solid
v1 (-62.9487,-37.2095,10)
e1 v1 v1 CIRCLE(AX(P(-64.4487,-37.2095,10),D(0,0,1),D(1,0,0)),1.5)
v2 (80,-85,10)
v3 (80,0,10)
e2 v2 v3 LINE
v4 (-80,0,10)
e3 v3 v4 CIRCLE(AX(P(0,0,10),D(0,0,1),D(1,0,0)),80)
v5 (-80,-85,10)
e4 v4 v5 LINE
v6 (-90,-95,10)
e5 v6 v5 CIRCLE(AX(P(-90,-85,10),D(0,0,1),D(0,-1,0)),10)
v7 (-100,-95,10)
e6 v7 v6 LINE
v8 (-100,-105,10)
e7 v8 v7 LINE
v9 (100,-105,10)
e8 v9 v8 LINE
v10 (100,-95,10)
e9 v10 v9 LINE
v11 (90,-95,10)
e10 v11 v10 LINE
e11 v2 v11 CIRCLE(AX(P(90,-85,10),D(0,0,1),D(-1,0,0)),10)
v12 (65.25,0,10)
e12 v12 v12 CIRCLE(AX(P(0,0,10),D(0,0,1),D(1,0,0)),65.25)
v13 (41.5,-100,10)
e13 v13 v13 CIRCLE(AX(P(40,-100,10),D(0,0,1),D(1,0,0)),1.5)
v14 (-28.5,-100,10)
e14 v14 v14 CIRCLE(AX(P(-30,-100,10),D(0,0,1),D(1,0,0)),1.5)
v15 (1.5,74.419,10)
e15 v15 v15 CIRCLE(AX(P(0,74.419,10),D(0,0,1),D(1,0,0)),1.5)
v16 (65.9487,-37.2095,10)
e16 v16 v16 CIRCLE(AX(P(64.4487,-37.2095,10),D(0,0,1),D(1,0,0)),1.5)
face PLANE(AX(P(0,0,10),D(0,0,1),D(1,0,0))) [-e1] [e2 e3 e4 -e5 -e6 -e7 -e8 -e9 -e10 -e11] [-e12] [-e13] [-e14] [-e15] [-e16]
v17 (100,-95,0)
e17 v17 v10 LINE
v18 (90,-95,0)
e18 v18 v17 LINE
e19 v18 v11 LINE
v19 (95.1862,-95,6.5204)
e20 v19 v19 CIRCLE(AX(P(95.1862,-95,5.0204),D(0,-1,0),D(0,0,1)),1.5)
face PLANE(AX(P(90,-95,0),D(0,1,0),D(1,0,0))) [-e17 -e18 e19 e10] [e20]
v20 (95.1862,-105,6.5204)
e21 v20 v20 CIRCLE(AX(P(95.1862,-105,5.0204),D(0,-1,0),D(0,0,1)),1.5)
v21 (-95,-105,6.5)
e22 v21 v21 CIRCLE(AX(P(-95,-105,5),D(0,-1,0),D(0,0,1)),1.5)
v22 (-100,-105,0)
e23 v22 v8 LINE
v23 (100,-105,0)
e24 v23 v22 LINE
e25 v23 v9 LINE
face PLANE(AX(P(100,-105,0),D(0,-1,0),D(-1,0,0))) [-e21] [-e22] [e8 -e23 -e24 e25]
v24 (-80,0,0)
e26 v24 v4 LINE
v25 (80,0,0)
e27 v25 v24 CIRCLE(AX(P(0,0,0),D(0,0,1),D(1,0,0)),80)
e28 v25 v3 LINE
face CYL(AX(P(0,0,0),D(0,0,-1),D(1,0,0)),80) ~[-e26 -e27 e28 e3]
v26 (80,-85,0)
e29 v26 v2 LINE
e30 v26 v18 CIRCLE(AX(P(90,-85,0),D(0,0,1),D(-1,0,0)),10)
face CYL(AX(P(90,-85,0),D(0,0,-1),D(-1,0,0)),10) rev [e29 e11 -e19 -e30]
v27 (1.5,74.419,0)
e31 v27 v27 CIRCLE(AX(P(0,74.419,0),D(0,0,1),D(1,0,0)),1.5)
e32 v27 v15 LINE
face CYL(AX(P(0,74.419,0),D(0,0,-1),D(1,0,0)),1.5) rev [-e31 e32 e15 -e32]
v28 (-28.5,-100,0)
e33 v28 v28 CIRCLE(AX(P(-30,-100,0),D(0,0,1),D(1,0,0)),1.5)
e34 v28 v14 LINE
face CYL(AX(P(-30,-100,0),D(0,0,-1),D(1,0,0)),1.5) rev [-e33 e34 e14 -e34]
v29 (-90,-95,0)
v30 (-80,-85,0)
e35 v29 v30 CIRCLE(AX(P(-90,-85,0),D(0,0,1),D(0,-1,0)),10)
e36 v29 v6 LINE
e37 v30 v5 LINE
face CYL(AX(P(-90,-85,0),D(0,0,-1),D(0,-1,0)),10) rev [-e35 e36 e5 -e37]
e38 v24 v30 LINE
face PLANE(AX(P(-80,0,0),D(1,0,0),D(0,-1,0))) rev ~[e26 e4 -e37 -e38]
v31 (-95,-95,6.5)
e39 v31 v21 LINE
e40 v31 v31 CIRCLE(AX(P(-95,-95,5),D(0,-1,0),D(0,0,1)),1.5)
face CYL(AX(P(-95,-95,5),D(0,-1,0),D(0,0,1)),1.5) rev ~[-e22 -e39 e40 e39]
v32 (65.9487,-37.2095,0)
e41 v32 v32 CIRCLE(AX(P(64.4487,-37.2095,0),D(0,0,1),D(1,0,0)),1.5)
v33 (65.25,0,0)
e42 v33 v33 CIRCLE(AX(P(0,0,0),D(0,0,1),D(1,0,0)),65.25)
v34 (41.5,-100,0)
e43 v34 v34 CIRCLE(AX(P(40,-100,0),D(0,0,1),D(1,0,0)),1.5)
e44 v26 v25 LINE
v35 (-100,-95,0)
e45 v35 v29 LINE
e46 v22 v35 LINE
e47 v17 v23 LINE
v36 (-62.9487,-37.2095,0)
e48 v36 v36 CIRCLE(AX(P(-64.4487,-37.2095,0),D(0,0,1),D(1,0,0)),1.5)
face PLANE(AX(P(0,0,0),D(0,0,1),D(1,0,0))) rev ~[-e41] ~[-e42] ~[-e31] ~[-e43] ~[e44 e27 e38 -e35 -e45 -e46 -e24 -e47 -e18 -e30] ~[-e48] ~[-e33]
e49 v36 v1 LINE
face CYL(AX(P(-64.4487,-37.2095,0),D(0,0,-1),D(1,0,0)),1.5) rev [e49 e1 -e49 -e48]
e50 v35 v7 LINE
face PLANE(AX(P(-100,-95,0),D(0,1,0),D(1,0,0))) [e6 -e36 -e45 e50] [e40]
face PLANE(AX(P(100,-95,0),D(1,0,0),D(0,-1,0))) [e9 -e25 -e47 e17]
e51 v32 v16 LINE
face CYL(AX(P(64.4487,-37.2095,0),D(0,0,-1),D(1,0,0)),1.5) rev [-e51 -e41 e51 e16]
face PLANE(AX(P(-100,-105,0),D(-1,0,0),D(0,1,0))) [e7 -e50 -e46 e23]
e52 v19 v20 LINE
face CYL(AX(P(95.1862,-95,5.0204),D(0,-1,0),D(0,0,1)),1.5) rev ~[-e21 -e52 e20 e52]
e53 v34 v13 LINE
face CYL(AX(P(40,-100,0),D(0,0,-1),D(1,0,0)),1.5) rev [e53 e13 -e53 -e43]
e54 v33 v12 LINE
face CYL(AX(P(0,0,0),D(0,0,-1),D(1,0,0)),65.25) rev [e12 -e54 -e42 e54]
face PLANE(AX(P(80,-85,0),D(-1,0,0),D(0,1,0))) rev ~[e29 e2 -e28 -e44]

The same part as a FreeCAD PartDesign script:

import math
import FreeCAD as App
import Part
import Sketcher
Q = App.Units.Quantity

doc = App.newDocument("Part")
body = doc.addObject("PartDesign::Body", "Body")

sketch1 = body.newObject("Sketcher::SketchObject", "Sketch")
sketch1.AttachmentSupport = (doc.getObject("XY_Plane"), [""])
sketch1.MapMode = "FlatFace"
sketch1.addGeometry([
    Part.ArcOfCircle(Part.Circle(App.Vector(0, 0, 0), App.Vector(0, 0, 1), 80), math.radians(0), math.radians(180)),
    Part.LineSegment(App.Vector(-80, 0, 0), App.Vector(-80, -85, 0)),
    Part.ArcOfCircle(Part.Circle(App.Vector(-90, -85, 0), App.Vector(0, 0, 1), 10), math.radians(-90), math.radians(0)),
    Part.LineSegment(App.Vector(-90, -95, 0), App.Vector(-100, -95, 0)),
    Part.LineSegment(App.Vector(-100, -95, 0), App.Vector(-100, -105, 0)),
    Part.LineSegment(App.Vector(-100, -105, 0), App.Vector(100, -105, 0)),
    Part.LineSegment(App.Vector(100, -105, 0), App.Vector(100, -95, 0)),
    Part.LineSegment(App.Vector(100, -95, 0), App.Vector(90, -95, 0)),
    Part.ArcOfCircle(Part.Circle(App.Vector(90, -85, 0), App.Vector(0, 0, 1), 10), math.radians(180), math.radians(270)),
    Part.LineSegment(App.Vector(80, -85, 0), App.Vector(80, 0, 0)),
    Part.Circle(App.Vector(-64.4, -37.2, 0), App.Vector(0, 0, 1), 1.5),
    Part.Circle(App.Vector(64.4, -37.2, 0), App.Vector(0, 0, 1), 1.5),
    Part.Circle(App.Vector(0, 0, 0), App.Vector(0, 0, 1), 65.2),
    Part.Circle(App.Vector(0, 74.4, 0), App.Vector(0, 0, 1), 1.5),
    Part.Circle(App.Vector(40, -100, 0), App.Vector(0, 0, 1), 1.5),
    Part.Circle(App.Vector(-30, -100, 0), App.Vector(0, 0, 1), 1.5),
], False)
sketch1.addConstraint([
    Sketcher.Constraint("Tangent", 0, 2, 1, 1),
    Sketcher.Constraint("Tangent", 1, 2, 2, 2),
    Sketcher.Constraint("Tangent", 2, 1, 3, 1),
    Sketcher.Constraint("Coincident", 3, 2, 4, 1),
    Sketcher.Constraint("Coincident", 4, 2, 5, 1),
    Sketcher.Constraint("Coincident", 5, 2, 6, 1),
    Sketcher.Constraint("Coincident", 6, 2, 7, 1),
    Sketcher.Constraint("Tangent", 7, 2, 8, 2),
    Sketcher.Constraint("Tangent", 8, 1, 9, 1),
    Sketcher.Constraint("Tangent", 9, 2, 0, 1),
    Sketcher.Constraint("Vertical", 1),
    Sketcher.Constraint("Horizontal", 3),
    Sketcher.Constraint("Vertical", 4),
    Sketcher.Constraint("Horizontal", 5),
    Sketcher.Constraint("Vertical", 6),
    Sketcher.Constraint("Horizontal", 7),
    Sketcher.Constraint("Vertical", 9),
    Sketcher.Constraint("Coincident", 0, 3, -1, 1),
    Sketcher.Constraint("Coincident", 12, 3, -1, 1),
    Sketcher.Constraint("Equal", 2, 8),
    Sketcher.Constraint("Equal", 10, 11),
    Sketcher.Constraint("Equal", 11, 13),
    Sketcher.Constraint("Equal", 13, 14),
    Sketcher.Constraint("Equal", 14, 15),
    Sketcher.Constraint("Symmetric", 10, 3, 11, 3, -2),
    Sketcher.Constraint("Symmetric", 3, 2, 6, 2, -2),
    Sketcher.Constraint("PointOnObject", 13, 3, -2),
    Sketcher.Constraint("Horizontal", 14, 3, 15, 3),
    Sketcher.Constraint("Equal", 7, 4),
    Sketcher.Constraint("Diameter", 10, Q("3 mm")),
    Sketcher.Constraint("Radius", 0, Q("80 mm")),
    Sketcher.Constraint("Radius", 2, Q("10 mm")),
    Sketcher.Constraint("Diameter", 12, Q("130.5 mm")),
    Sketcher.Constraint("DistanceX", 3, 2, 3, 1, Q("10 mm")),
    Sketcher.Constraint("DistanceY", 4, 2, -1, 1, Q("105 mm")),
    Sketcher.Constraint("DistanceX", 15, 3, 14, 3, Q("70 mm")),
    Sketcher.Constraint("DistanceX", 3, 2, 15, 3, Q("70 mm")),
    Sketcher.Constraint("DistanceY", 14, 3, -1, 1, Q("100 mm")),
    Sketcher.Constraint("DistanceY", -1, 1, 13, 3, Q("74.419 mm")),
    Sketcher.Constraint("DistanceX", 10, 3, -1, 1, Q("64.4487 mm")),
    Sketcher.Constraint("DistanceY", 10, 3, -1, 1, Q("37.2095 mm")),
])
pad1 = body.newObject("PartDesign::Pad", "Pad")
pad1.Profile = sketch1
pad1.Length = 10

sketch2 = body.newObject("Sketcher::SketchObject", "Sketch001")
sketch2.AttachmentSupport = (doc.getObject("XZ_Plane"), [""])
sketch2.MapMode = "FlatFace"
sketch2.AttachmentOffset = App.Placement(App.Vector(0, 0, 95), App.Rotation())
sketch2.addGeometry(Part.Circle(App.Vector(-95, 5, 0), App.Vector(0, 0, 1), 1.5), False)
sketch2.addConstraint([
    Sketcher.Constraint("Diameter", 0, Q("3 mm")),
    Sketcher.Constraint("DistanceX", 0, 3, -1, 1, Q("95 mm")),
    Sketcher.Constraint("DistanceY", -1, 1, 0, 3, Q("5 mm")),
])
doc.recompute()
hole = body.newObject("PartDesign::Hole", "Hole")
hole.Profile = sketch2
hole.ThreadType = "None"
hole.Diameter = 3
hole.DepthType = "Dimension"
hole.Depth = 10
hole.DrillPoint = "Angled"
hole.DrillPointAngle = 118
hole.Reversed = True

sketch3 = body.newObject("Sketcher::SketchObject", "Sketch002")
sketch3.AttachmentSupport = (doc.getObject("XZ_Plane"), [""])
sketch3.MapMode = "FlatFace"
sketch3.AttachmentOffset = App.Placement(App.Vector(0, 0, 95), App.Rotation())
sketch3.addGeometry(Part.Circle(App.Vector(95.2, 5, 0), App.Vector(0, 0, 1), 1.5), False)
sketch3.addConstraint([
    Sketcher.Constraint("Diameter", 0, Q("3 mm")),
    Sketcher.Constraint("DistanceX", -1, 1, 0, 3, Q("95.1862 mm")),
    Sketcher.Constraint("DistanceY", -1, 1, 0, 3, Q("5.0204 mm")),
])
doc.recompute()
hole2 = body.newObject("PartDesign::Hole", "Hole001")
hole2.Profile = sketch3
hole2.ThreadType = "None"
hole2.Diameter = 3
hole2.DepthType = "Dimension"
hole2.Depth = 10
hole2.DrillPoint = "Angled"
hole2.DrillPointAngle = 118
hole2.Reversed = True

doc.recompute()
